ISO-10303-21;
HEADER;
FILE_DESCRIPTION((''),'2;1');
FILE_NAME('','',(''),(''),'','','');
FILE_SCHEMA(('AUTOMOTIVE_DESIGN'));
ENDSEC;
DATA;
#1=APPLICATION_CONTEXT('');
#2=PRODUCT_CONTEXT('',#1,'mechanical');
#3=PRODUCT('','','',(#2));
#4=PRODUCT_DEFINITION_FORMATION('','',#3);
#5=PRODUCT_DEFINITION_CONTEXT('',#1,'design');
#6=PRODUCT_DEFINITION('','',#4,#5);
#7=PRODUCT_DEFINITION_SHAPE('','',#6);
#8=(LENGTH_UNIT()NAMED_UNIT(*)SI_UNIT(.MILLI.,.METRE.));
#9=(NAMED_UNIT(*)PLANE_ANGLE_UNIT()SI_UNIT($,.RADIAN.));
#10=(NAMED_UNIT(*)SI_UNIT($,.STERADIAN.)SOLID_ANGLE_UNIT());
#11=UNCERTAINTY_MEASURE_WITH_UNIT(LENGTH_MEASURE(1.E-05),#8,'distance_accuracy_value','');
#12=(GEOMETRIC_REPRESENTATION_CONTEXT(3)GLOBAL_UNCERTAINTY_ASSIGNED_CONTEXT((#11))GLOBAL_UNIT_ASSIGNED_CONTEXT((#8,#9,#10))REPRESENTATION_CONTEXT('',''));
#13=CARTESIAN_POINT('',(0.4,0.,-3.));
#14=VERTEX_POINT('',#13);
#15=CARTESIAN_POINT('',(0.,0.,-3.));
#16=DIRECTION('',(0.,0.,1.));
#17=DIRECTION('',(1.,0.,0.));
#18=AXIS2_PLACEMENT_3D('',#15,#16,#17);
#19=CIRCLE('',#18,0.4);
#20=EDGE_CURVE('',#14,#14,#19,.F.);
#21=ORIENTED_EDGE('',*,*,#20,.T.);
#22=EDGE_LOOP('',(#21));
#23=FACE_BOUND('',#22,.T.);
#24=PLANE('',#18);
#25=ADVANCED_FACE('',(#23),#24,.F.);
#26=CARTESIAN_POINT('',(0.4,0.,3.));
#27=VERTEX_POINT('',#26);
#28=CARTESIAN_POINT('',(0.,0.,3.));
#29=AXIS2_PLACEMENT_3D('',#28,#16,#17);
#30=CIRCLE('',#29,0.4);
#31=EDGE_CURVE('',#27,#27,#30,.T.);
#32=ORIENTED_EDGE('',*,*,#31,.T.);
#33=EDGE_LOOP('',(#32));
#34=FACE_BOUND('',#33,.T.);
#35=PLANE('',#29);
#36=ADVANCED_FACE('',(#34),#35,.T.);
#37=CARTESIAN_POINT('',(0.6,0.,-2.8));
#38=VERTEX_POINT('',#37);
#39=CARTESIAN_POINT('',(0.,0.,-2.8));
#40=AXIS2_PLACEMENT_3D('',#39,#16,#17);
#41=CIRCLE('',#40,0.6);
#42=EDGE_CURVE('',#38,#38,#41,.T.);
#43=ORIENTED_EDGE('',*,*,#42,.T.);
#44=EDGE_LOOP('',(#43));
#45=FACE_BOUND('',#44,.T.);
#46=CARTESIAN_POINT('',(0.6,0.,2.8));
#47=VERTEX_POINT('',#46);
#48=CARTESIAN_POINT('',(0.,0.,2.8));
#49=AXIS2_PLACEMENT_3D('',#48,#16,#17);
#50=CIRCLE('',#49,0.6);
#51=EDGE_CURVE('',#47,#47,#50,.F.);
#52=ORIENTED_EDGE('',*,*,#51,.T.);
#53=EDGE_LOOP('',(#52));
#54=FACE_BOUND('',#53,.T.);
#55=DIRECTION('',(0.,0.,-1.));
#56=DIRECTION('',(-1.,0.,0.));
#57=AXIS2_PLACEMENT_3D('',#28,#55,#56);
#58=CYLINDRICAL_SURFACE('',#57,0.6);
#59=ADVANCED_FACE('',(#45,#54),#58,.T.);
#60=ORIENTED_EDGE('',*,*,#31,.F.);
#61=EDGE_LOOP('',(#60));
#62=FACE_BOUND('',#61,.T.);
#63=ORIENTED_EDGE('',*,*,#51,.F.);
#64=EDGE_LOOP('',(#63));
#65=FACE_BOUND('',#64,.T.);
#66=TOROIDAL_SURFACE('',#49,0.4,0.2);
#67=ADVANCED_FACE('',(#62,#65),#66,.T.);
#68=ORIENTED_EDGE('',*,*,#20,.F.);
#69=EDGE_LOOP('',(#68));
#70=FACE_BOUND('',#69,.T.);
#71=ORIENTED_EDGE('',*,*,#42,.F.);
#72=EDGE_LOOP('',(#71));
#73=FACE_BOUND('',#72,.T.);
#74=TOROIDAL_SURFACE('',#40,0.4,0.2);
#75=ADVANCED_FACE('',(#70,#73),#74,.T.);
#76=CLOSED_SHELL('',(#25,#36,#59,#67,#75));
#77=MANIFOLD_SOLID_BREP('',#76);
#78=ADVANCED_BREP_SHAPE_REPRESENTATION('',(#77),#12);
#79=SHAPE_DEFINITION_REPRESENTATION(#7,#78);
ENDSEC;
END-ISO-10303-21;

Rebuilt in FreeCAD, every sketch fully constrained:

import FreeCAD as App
import Part
import Sketcher
from FreeCAD import Vector


def edges_at(feature, points):
    """Names of the edges that pass closest to the given points."""
    edges = feature.Shape.Edges
    near = lambda p: min(range(len(edges)), key=lambda i: edges[i].distToShape(Part.Vertex(*p))[0])
    return sorted({f"Edge{near(p) + 1}" for p in points})

doc = App.newDocument("Part")
body = doc.addObject("PartDesign::Body", "Body")

# Sketch on XY plane
sketch1 = doc.addObject("Sketcher::SketchObject", "Sketch")
body.addObject(sketch1)
sketch1.AttachmentSupport = (doc.XY_Plane, [""])
sketch1.MapMode = "FlatFace"
sketch1.addGeometry(Part.Circle(Vector(0, 0, 0), Vector(0, 0, 1), 0.6), False)
sketch1.addConstraint([
    Sketcher.Constraint("Coincident", 0, 3, -1, 1),
    Sketcher.Constraint("Diameter", 0, 1.2),
])
pad1 = doc.addObject("PartDesign::Pad", "Pad")
body.addObject(pad1)
pad1.Profile = sketch1
pad1.Length = 6
pad1.Midplane = True
doc.recompute()

fillet = doc.addObject("PartDesign::Fillet", "Fillet")
body.addObject(fillet)
fillet.Base = (pad1, edges_at(pad1, [(-0.6, 0, -3), (-0.6, 0, 3)]))
fillet.Radius = 0.2

doc.recompute()
